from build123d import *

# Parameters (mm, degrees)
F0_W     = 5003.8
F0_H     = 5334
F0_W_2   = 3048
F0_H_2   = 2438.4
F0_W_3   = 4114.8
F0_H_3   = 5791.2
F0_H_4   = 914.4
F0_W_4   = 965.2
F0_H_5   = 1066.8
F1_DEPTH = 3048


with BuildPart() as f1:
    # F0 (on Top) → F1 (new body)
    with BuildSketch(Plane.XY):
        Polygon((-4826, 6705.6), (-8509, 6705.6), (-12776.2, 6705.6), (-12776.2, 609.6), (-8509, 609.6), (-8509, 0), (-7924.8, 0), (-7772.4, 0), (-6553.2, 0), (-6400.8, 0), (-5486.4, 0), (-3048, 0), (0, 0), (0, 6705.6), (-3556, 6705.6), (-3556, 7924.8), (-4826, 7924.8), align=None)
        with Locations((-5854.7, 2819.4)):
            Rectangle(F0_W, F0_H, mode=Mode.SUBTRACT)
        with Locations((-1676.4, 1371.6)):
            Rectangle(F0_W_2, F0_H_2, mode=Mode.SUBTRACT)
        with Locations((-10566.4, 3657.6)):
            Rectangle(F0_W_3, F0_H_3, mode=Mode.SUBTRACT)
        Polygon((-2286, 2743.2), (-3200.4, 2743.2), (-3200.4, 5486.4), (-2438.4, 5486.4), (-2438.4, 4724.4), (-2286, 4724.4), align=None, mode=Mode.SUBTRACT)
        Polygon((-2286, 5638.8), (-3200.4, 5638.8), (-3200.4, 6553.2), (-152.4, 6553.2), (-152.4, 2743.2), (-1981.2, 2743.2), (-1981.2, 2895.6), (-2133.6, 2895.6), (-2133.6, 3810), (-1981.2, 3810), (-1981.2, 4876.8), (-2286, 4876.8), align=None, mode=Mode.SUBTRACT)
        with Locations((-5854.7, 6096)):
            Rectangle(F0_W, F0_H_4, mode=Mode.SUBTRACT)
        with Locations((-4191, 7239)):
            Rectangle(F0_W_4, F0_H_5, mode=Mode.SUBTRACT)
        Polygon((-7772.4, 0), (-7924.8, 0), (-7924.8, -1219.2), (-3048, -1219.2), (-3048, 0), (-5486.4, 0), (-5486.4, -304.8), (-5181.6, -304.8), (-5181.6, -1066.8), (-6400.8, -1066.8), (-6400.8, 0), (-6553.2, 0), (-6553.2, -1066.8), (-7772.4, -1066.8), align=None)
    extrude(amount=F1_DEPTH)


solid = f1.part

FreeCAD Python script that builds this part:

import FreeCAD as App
import Part
import Sketcher
from FreeCAD import Vector
Q = App.Units.Quantity

doc = App.newDocument("Part")
body = doc.addObject("PartDesign::Body", "Body")

sketch1 = doc.addObject("Sketcher::SketchObject", "Sketch")
body.addObject(sketch1)
sketch1.AttachmentSupport = (doc.XY_Plane, [""])
sketch1.MapMode = "FlatFace"
sketch1.addGeometry([
    Part.LineSegment(Vector(-4826, 6706, 0), Vector(-12776, 6706, 0)),
    Part.LineSegment(Vector(-12776, 6706, 0), Vector(-12776, 610, 0)),
    Part.LineSegment(Vector(-12776, 610, 0), Vector(-8509, 610, 0)),
    Part.LineSegment(Vector(-8509, 610, 0), Vector(-8509, 0, 0)),
    Part.LineSegment(Vector(-8509, 0, 0), Vector(-7925, 0, 0)),
    Part.LineSegment(Vector(-7925, 0, 0), Vector(-7925, -1219, 0)),
    Part.LineSegment(Vector(-7925, -1219, 0), Vector(-3048, -1219, 0)),
    Part.LineSegment(Vector(-3048, -1219, 0), Vector(-3048, 0, 0)),
    Part.LineSegment(Vector(-3048, 0, 0), Vector(0, 0, 0)),
    Part.LineSegment(Vector(0, 0, 0), Vector(0, 6706, 0)),
    Part.LineSegment(Vector(0, 6706, 0), Vector(-3556, 6706, 0)),
    Part.LineSegment(Vector(-3556, 6706, 0), Vector(-3556, 7925, 0)),
    Part.LineSegment(Vector(-3556, 7925, 0), Vector(-4826, 7925, 0)),
    Part.LineSegment(Vector(-4826, 7925, 0), Vector(-4826, 6706, 0)),
    Part.LineSegment(Vector(-7772, 0, 0), Vector(-6553, 0, 0)),
    Part.LineSegment(Vector(-6553, 0, 0), Vector(-6553, -1067, 0)),
    Part.LineSegment(Vector(-6553, -1067, 0), Vector(-7772, -1067, 0)),
    Part.LineSegment(Vector(-7772, -1067, 0), Vector(-7772, 0, 0)),
    Part.LineSegment(Vector(-6401, 0, 0), Vector(-5486, 0, 0)),
    Part.LineSegment(Vector(-5486, 0, 0), Vector(-5486, -305, 0)),
    Part.LineSegment(Vector(-5486, -305, 0), Vector(-5182, -305, 0)),
    Part.LineSegment(Vector(-5182, -305, 0), Vector(-5182, -1067, 0)),
    Part.LineSegment(Vector(-5182, -1067, 0), Vector(-6401, -1067, 0)),
    Part.LineSegment(Vector(-6401, -1067, 0), Vector(-6401, 0, 0)),
    Part.LineSegment(Vector(-8509, 762, 0), Vector(-12624, 762, 0)),
    Part.LineSegment(Vector(-12624, 762, 0), Vector(-12624, 6553, 0)),
    Part.LineSegment(Vector(-12624, 6553, 0), Vector(-8509, 6553, 0)),
    Part.LineSegment(Vector(-8509, 6553, 0), Vector(-8509, 762, 0)),
    Part.LineSegment(Vector(-152, 152, 0), Vector(-3200, 152, 0)),
    Part.LineSegment(Vector(-3200, 152, 0), Vector(-3200, 2591, 0)),
    Part.LineSegment(Vector(-3200, 2591, 0), Vector(-152, 2591, 0)),
    Part.LineSegment(Vector(-152, 2591, 0), Vector(-152, 152, 0)),
    Part.LineSegment(Vector(-3353, 152, 0), Vector(-8357, 152, 0)),
    Part.LineSegment(Vector(-8357, 152, 0), Vector(-8357, 5486, 0)),
    Part.LineSegment(Vector(-8357, 5486, 0), Vector(-3353, 5486, 0)),
    Part.LineSegment(Vector(-3353, 5486, 0), Vector(-3353, 152, 0)),
    Part.LineSegment(Vector(-2286, 4724, 0), Vector(-2286, 2743, 0)),
    Part.LineSegment(Vector(-2286, 2743, 0), Vector(-3200, 2743, 0)),
    Part.LineSegment(Vector(-3200, 2743, 0), Vector(-3200, 5486, 0)),
    Part.LineSegment(Vector(-3200, 5486, 0), Vector(-2438, 5486, 0)),
    Part.LineSegment(Vector(-2438, 5486, 0), Vector(-2438, 4724, 0)),
    Part.LineSegment(Vector(-2438, 4724, 0), Vector(-2286, 4724, 0)),
    Part.LineSegment(Vector(-2286, 4877, 0), Vector(-2286, 5639, 0)),
    Part.LineSegment(Vector(-2286, 5639, 0), Vector(-3200, 5639, 0)),
    Part.LineSegment(Vector(-3200, 5639, 0), Vector(-3200, 6553, 0)),
    Part.LineSegment(Vector(-3200, 6553, 0), Vector(-152, 6553, 0)),
    Part.LineSegment(Vector(-152, 6553, 0), Vector(-152, 2743, 0)),
    Part.LineSegment(Vector(-152, 2743, 0), Vector(-1981, 2743, 0)),
    Part.LineSegment(Vector(-1981, 2743, 0), Vector(-1981, 2896, 0)),
    Part.LineSegment(Vector(-1981, 2896, 0), Vector(-2134, 2896, 0)),
    Part.LineSegment(Vector(-2134, 2896, 0), Vector(-2134, 3810, 0)),
    Part.LineSegment(Vector(-2134, 3810, 0), Vector(-1981, 3810, 0)),
    Part.LineSegment(Vector(-1981, 3810, 0), Vector(-1981, 4877, 0)),
    Part.LineSegment(Vector(-1981, 4877, 0), Vector(-2286, 4877, 0)),
    Part.LineSegment(Vector(-3353, 5639, 0), Vector(-8357, 5639, 0)),
    Part.LineSegment(Vector(-8357, 5639, 0), Vector(-8357, 6553, 0)),
    Part.LineSegment(Vector(-8357, 6553, 0), Vector(-3353, 6553, 0)),
    Part.LineSegment(Vector(-3353, 6553, 0), Vector(-3353, 5639, 0)),
    Part.LineSegment(Vector(-3708, 6706, 0), Vector(-4674, 6706, 0)),
    Part.LineSegment(Vector(-4674, 6706, 0), Vector(-4674, 7772, 0)),
    Part.LineSegment(Vector(-4674, 7772, 0), Vector(-3708, 7772, 0)),
    Part.LineSegment(Vector(-3708, 7772, 0), Vector(-3708, 6706, 0)),
], False)
sketch1.addConstraint([
    Sketcher.Constraint("Coincident", 0, 2, 1, 1),
    Sketcher.Constraint("Coincident", 1, 2, 2, 1),
    Sketcher.Constraint("Coincident", 2, 2, 3, 1),
    Sketcher.Constraint("Coincident", 3, 2, 4, 1),
    Sketcher.Constraint("Coincident", 4, 2, 5, 1),
    Sketcher.Constraint("Coincident", 5, 2, 6, 1),
    Sketcher.Constraint("Coincident", 6, 2, 7, 1),
    Sketcher.Constraint("Coincident", 7, 2, 8, 1),
    Sketcher.Constraint("Coincident", 8, 2, 9, 1),
    Sketcher.Constraint("Coincident", 9, 2, 10, 1),
    Sketcher.Constraint("Coincident", 10, 2, 11, 1),
    Sketcher.Constraint("Coincident", 11, 2, 12, 1),
    Sketcher.Constraint("Coincident", 12, 2, 13, 1),
    Sketcher.Constraint("Coincident", 13, 2, 0, 1),
    Sketcher.Constraint("Coincident", 14, 2, 15, 1),
    Sketcher.Constraint("Coincident", 15, 2, 16, 1),
    Sketcher.Constraint("Coincident", 16, 2, 17, 1),
    Sketcher.Constraint("Coincident", 17, 2, 14, 1),
    Sketcher.Constraint("Coincident", 18, 2, 19, 1),
    Sketcher.Constraint("Coincident", 19, 2, 20, 1),
    Sketcher.Constraint("Coincident", 20, 2, 21, 1),
    Sketcher.Constraint("Coincident", 21, 2, 22, 1),
    Sketcher.Constraint("Coincident", 22, 2, 23, 1),
    Sketcher.Constraint("Coincident", 23, 2, 18, 1),
    Sketcher.Constraint("Coincident", 24, 2, 25, 1),
    Sketcher.Constraint("Coincident", 25, 2, 26, 1),
    Sketcher.Constraint("Coincident", 26, 2, 27, 1),
    Sketcher.Constraint("Coincident", 27, 2, 24, 1),
    Sketcher.Constraint("Coincident", 28, 2, 29, 1),
    Sketcher.Constraint("Coincident", 29, 2, 30, 1),
    Sketcher.Constraint("Coincident", 30, 2, 31, 1),
    Sketcher.Constraint("Coincident", 31, 2, 28, 1),
    Sketcher.Constraint("Coincident", 32, 2, 33, 1),
    Sketcher.Constraint("Coincident", 33, 2, 34, 1),
    Sketcher.Constraint("Coincident", 34, 2, 35, 1),
    Sketcher.Constraint("Coincident", 35, 2, 32, 1),
    Sketcher.Constraint("Coincident", 36, 2, 37, 1),
    Sketcher.Constraint("Coincident", 37, 2, 38, 1),
    Sketcher.Constraint("Coincident", 38, 2, 39, 1),
    Sketcher.Constraint("Coincident", 39, 2, 40, 1),
    Sketcher.Constraint("Coincident", 40, 2, 41, 1),
    Sketcher.Constraint("Coincident", 41, 2, 36, 1),
    Sketcher.Constraint("Coincident", 42, 2, 43, 1),
    Sketcher.Constraint("Coincident", 43, 2, 44, 1),
    Sketcher.Constraint("Coincident", 44, 2, 45, 1),
    Sketcher.Constraint("Coincident", 45, 2, 46, 1),
    Sketcher.Constraint("Coincident", 46, 2, 47, 1),
    Sketcher.Constraint("Coincident", 47, 2, 48, 1),
    Sketcher.Constraint("Coincident", 48, 2, 49, 1),
    Sketcher.Constraint("Coincident", 49, 2, 50, 1),
    Sketcher.Constraint("Coincident", 50, 2, 51, 1),
    Sketcher.Constraint("Coincident", 51, 2, 52, 1),
    Sketcher.Constraint("Coincident", 52, 2, 53, 1),
    Sketcher.Constraint("Coincident", 53, 2, 42, 1),
    Sketcher.Constraint("Coincident", 54, 2, 55, 1),
    Sketcher.Constraint("Coincident", 55, 2, 56, 1),
    Sketcher.Constraint("Coincident", 56, 2, 57, 1),
    Sketcher.Constraint("Coincident", 57, 2, 54, 1),
    Sketcher.Constraint("Coincident", 58, 2, 59, 1),
    Sketcher.Constraint("Coincident", 59, 2, 60, 1),
    Sketcher.Constraint("Coincident", 60, 2, 61, 1),
    Sketcher.Constraint("Coincident", 61, 2, 58, 1),
    Sketcher.Constraint("Horizontal", 0),
    Sketcher.Constraint("Vertical", 1),
    Sketcher.Constraint("Horizontal", 2),
    Sketcher.Constraint("Vertical", 3),
    Sketcher.Constraint("Horizontal", 4),
    Sketcher.Constraint("Vertical", 5),
    Sketcher.Constraint("Horizontal", 6),
    Sketcher.Constraint("Vertical", 7),
    Sketcher.Constraint("Horizontal", 8),
    Sketcher.Constraint("Vertical", 9),
    Sketcher.Constraint("Horizontal", 10),
    Sketcher.Constraint("Vertical", 11),
    Sketcher.Constraint("Horizontal", 12),
    Sketcher.Constraint("Vertical", 13),
    Sketcher.Constraint("Horizontal", 14),
    Sketcher.Constraint("Vertical", 15),
    Sketcher.Constraint("Horizontal", 16),
    Sketcher.Constraint("Vertical", 17),
    Sketcher.Constraint("Horizontal", 18),
    Sketcher.Constraint("Vertical", 19),
    Sketcher.Constraint("Horizontal", 20),
    Sketcher.Constraint("Vertical", 21),
    Sketcher.Constraint("Horizontal", 22),
    Sketcher.Constraint("Vertical", 23),
    Sketcher.Constraint("Horizontal", 24),
    Sketcher.Constraint("Vertical", 25),
    Sketcher.Constraint("Horizontal", 26),
    Sketcher.Constraint("Vertical", 27),
    Sketcher.Constraint("Horizontal", 28),
    Sketcher.Constraint("Vertical", 29),
    Sketcher.Constraint("Horizontal", 30),
    Sketcher.Constraint("Vertical", 31),
    Sketcher.Constraint("Horizontal", 32),
    Sketcher.Constraint("Vertical", 33),
    Sketcher.Constraint("Horizontal", 34),
    Sketcher.Constraint("Vertical", 35),
    Sketcher.Constraint("Vertical", 36),
    Sketcher.Constraint("Horizontal", 37),
    Sketcher.Constraint("Vertical", 38),
    Sketcher.Constraint("Horizontal", 39),
    Sketcher.Constraint("Vertical", 40),
    Sketcher.Constraint("Horizontal", 41),
    Sketcher.Constraint("Vertical", 42),
    Sketcher.Constraint("Horizontal", 43),
    Sketcher.Constraint("Vertical", 44),
    Sketcher.Constraint("Horizontal", 45),
    Sketcher.Constraint("Vertical", 46),
    Sketcher.Constraint("Horizontal", 47),
    Sketcher.Constraint("Vertical", 48),
    Sketcher.Constraint("Horizontal", 49),
    Sketcher.Constraint("Vertical", 50),
    Sketcher.Constraint("Horizontal", 51),
    Sketcher.Constraint("Vertical", 52),
    Sketcher.Constraint("Horizontal", 53),
    Sketcher.Constraint("Horizontal", 54),
    Sketcher.Constraint("Vertical", 55),
    Sketcher.Constraint("Horizontal", 56),
    Sketcher.Constraint("Vertical", 57),
    Sketcher.Constraint("Horizontal", 58),
    Sketcher.Constraint("Vertical", 59),
    Sketcher.Constraint("Horizontal", 60),
    Sketcher.Constraint("Vertical", 61),
    Sketcher.Constraint("Coincident", 8, 2, -1, 1),
    Sketcher.Constraint("PointOnObject", 3, 2, -1),
    Sketcher.Constraint("PointOnObject", 14, 2, -1),
    Sketcher.Constraint("PointOnObject", 18, 2, -1),
    Sketcher.Constraint("Horizontal", 0, 2, 9, 2),
    Sketcher.Constraint("Horizontal", 16, 2, 21, 2),
    Sketcher.Constraint("Horizontal", 31, 2, 32, 2),
    Sketcher.Constraint("Horizontal", 34, 2, 38, 2),
    Sketcher.Constraint("Horizontal", 26, 2, 44, 2),
    Sketcher.Constraint("Horizontal", 37, 2, 46, 2),
    Sketcher.Constraint("Horizontal", 43, 2, 54, 2),
    Sketcher.Constraint("Horizontal", 45, 2, 55, 2),
    Sketcher.Constraint("Horizontal", 13, 2, 58, 2),
    Sketcher.Constraint("Vertical", 3, 2, 26, 2),
    Sketcher.Constraint("Vertical", 29, 2, 37, 2),
    Sketcher.Constraint("Vertical", 41, 2, 42, 2),
    Sketcher.Constraint("Vertical", 38, 2, 43, 2),
    Sketcher.Constraint("Vertical", 31, 2, 45, 2),
    Sketcher.Constraint("Vertical", 48, 2, 51, 2),
    Sketcher.Constraint("Vertical", 33, 2, 54, 2),
    Sketcher.Constraint("Vertical", 35, 2, 56, 2),
    Sketcher.Constraint("Equal", 16, 22),
    Sketcher.Constraint("Equal", 8, 28),
    Sketcher.Constraint("Equal", 18, 37),
    Sketcher.Constraint("Equal", 41, 49),
    Sketcher.Constraint("Equal", 20, 53),
    Sketcher.Constraint("Equal", 22, 5),
    Sketcher.Constraint("Equal", 7, 11),
    Sketcher.Constraint("Equal", 53, 19),
    Sketcher.Constraint("Equal", 39, 21),
    Sketcher.Constraint("Equal", 21, 40),
    Sketcher.Constraint("Equal", 40, 42),
    Sketcher.Constraint("Equal", 43, 44),
    Sketcher.Constraint("Equal", 51, 48),
    Sketcher.Constraint("Equal", 44, 50),
    Sketcher.Constraint("Equal", 23, 52),
    Sketcher.Constraint("Equal", 52, 59),
    Sketcher.Constraint("DistanceX", 0, 2, 0, 1, Q("313 in")),
    Sketcher.Constraint("DistanceX", 2, 1, 2, 2, Q("168 in")),
    Sketcher.Constraint("DistanceX", 4, 1, 4, 2, Q("23 in")),
    Sketcher.Constraint("DistanceX", 6, 1, 6, 2, Q("192 in")),
    Sketcher.Constraint("DistanceX", 8, 1, 8, 2, Q("120 in")),
    Sketcher.Constraint("DistanceX", 10, 2, 10, 1, Q("140 in")),
    Sketcher.Constraint("DistanceX", 14, 1, 14, 2, Q("48 in")),
    Sketcher.Constraint("DistanceX", 18, 1, 18, 2, Q("36 in")),
    Sketcher.Constraint("DistanceX", 24, 2, 24, 1, Q("162 in")),
    Sketcher.Constraint("DistanceX", 32, 2, 32, 1, Q("197 in")),
    Sketcher.Constraint("DistanceX", 39, 1, 39, 2, Q("30 in")),
    Sketcher.Constraint("DistanceX", 58, 2, 58, 1, Q("38 in")),
    Sketcher.Constraint("DistanceY", 1, 2, 1, 1, Q("240 in")),
    Sketcher.Constraint("DistanceY", 3, 2, 3, 1, Q("24 in")),
    Sketcher.Constraint("DistanceY", 25, 1, 25, 2, Q("228 in")),
    Sketcher.Constraint("DistanceY", 29, 1, 29, 2, Q("96 in")),
    Sketcher.Constraint("DistanceY", 33, 1, 33, 2, Q("210 in")),
    Sketcher.Constraint("DistanceY", 36, 2, 36, 1, Q("78 in")),
    Sketcher.Constraint("DistanceX", 14, 2, -1, 1, Q("258 in")),
    Sketcher.Constraint("DistanceX", 18, 2, -1, 1, Q("216 in")),
    Sketcher.Constraint("DistanceY", -1, 1, 24, 2, Q("30 in")),
    Sketcher.Constraint("DistanceX", 28, 2, -1, 1, Q("126 in")),
    Sketcher.Constraint("DistanceX", 32, 2, -1, 1, Q("329 in")),
    Sketcher.Constraint("DistanceX", 58, 2, -1, 1, Q("184 in")),
])
pad1 = doc.addObject("PartDesign::Pad", "Pad")
body.addObject(pad1)
pad1.Profile = sketch1
pad1.Length = Q("120 in")

doc.recompute()
